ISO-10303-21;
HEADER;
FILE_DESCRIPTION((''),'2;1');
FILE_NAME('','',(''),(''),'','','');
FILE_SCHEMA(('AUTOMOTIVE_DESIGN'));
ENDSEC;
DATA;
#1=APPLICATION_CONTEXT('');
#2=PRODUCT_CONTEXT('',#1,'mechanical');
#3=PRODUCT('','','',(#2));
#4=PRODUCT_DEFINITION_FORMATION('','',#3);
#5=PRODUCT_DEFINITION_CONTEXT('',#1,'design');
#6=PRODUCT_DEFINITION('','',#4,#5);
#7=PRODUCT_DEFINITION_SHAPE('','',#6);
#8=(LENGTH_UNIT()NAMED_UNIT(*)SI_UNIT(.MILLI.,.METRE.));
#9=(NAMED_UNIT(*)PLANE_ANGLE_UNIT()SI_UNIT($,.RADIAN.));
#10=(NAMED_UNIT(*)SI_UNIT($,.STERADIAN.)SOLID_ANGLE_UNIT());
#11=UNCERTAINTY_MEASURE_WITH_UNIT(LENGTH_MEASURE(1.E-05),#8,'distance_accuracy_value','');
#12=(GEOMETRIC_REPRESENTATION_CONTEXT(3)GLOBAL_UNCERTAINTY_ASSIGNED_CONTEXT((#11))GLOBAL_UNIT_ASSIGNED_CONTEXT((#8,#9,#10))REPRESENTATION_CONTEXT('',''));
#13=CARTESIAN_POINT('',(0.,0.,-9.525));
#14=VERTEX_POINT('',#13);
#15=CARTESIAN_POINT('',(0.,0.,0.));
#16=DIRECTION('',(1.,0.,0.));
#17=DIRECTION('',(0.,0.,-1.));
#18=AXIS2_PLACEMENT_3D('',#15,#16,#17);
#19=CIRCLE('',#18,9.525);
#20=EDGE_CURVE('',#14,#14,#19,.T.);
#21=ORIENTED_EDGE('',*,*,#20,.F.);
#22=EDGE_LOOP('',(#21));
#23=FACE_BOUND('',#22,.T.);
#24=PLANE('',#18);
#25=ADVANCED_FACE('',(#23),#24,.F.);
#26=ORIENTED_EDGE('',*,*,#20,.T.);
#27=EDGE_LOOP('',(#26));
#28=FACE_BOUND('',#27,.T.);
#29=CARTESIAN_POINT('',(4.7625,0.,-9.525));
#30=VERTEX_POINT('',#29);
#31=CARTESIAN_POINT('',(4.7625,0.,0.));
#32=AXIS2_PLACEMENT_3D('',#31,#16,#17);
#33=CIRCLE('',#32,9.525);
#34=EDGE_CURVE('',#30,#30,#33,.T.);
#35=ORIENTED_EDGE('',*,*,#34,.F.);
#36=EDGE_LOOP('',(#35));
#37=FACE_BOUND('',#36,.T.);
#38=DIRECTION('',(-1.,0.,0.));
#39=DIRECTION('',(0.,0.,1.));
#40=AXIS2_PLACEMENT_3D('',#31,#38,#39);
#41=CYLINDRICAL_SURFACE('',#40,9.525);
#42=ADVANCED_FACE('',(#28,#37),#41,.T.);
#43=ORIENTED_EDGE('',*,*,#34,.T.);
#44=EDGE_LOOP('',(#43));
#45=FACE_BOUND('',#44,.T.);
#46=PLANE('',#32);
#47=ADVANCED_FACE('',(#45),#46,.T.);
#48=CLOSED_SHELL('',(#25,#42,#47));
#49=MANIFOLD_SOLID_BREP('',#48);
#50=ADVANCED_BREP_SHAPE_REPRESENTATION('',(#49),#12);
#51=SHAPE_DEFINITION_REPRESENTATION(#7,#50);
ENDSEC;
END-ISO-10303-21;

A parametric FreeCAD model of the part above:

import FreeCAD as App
import Part
import Sketcher

V = App.Vector
Q = App.Units.Quantity

doc = App.newDocument("Part")
params = doc.addObject("Spreadsheet::Sheet", "Params")
for row, (alias, value) in enumerate([
    ("sketch1_diameter", "0.75 in"),
    ("pad1_length", "0.1875 in"),
], start=1):
    params.set(f"A{row}", alias)
    params.set(f"B{row}", "=" + value)
    params.setAlias(f"B{row}", alias)

body = doc.addObject("PartDesign::Body", "Body")

# Sketch on YZ plane
sketch1 = body.newObject("Sketcher::SketchObject", "Sketch")
sketch1.AttachmentSupport = (doc.getObject("YZ_Plane"), [""])
sketch1.MapMode = "FlatFace"
sketch1.addGeometry(Part.Circle(V(0, 0, 0), V(0, 0, 1), 10), False)
sketch1.addConstraint([
    Sketcher.Constraint("Coincident", 0, 3, -1, 1),
    Sketcher.Constraint("Diameter", 0, Q("0.75 in")),
])
sketch1.setExpression("Constraints[1]", "Params.sketch1_diameter")
pad1 = body.newObject("PartDesign::Pad", "Pad")
pad1.Profile = sketch1
pad1.setExpression("Length", "Params.pad1_length")

doc.recompute()
